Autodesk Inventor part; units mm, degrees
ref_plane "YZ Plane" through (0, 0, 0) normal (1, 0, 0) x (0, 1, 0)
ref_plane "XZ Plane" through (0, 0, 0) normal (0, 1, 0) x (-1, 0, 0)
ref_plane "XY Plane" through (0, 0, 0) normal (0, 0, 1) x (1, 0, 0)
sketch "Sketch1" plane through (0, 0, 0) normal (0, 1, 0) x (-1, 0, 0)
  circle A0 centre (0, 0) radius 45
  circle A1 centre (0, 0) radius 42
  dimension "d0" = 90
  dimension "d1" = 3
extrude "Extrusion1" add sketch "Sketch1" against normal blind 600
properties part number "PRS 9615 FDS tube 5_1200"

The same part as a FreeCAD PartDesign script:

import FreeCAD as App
import Part
import Sketcher
Q = App.Units.Quantity

doc = App.newDocument("Part")
body = doc.addObject("PartDesign::Body", "Body")

# Sketch on XZ plane
sketch1 = body.newObject("Sketcher::SketchObject", "Sketch")
sketch1.AttachmentSupport = (doc.getObject("XZ_Plane"), [""])
sketch1.MapMode = "FlatFace"
sketch1.addGeometry([
    Part.Circle(App.Vector(0, 0, 0), App.Vector(0, 0, 1), 45),
    Part.Circle(App.Vector(0, 0, 0), App.Vector(0, 0, 1), 42),
], False)
sketch1.addConstraint([
    Sketcher.Constraint("Coincident", 0, 3, -1, 1),
    Sketcher.Constraint("Coincident", 1, 3, -1, 1),
    Sketcher.Constraint("Diameter", 0, Q("90 mm")),
    Sketcher.Constraint("Diameter", 1, Q("84 mm")),
])
pad1 = body.newObject("PartDesign::Pad", "Pad")
pad1.Profile = sketch1
pad1.Length = 600

doc.recompute()
